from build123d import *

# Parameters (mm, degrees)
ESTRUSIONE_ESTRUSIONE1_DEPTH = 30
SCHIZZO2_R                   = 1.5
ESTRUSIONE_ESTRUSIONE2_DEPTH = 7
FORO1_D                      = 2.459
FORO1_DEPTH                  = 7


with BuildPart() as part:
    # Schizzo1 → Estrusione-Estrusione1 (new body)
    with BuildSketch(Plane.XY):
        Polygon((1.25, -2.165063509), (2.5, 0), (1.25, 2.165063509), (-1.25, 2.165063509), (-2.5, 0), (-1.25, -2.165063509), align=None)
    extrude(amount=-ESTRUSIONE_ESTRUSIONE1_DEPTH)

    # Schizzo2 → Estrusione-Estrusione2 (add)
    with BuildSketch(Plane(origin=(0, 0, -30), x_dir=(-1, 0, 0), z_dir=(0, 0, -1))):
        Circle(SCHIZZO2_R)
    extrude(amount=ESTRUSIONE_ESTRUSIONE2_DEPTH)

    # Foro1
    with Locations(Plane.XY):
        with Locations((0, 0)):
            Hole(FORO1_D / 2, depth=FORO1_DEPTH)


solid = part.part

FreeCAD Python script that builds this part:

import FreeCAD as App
import Part
import Sketcher
from FreeCAD import Vector
Q = App.Units.Quantity


def add_polygon(sketch, points):
    """Adds a closed chain of lines whose ends are joined by coincident constraints."""
    first, n = sketch.GeometryCount, len(points)
    for a, b in zip(points, points[1:] + points[:1]):
        sketch.addGeometry(Part.LineSegment(App.Vector(*a, 0), App.Vector(*b, 0)), False)
    for i in range(n):
        sketch.addConstraint(Sketcher.Constraint("Coincident", first + i, 2, first + (i + 1) % n, 1))

doc = App.newDocument("Part")
body = doc.addObject("PartDesign::Body", "Body")

# Sketch on XY plane
sketch1 = body.newObject("Sketcher::SketchObject", "Sketch")
sketch1.AttachmentSupport = (doc.getObject("XY_Plane"), [""])
sketch1.MapMode = "FlatFace"
add_polygon(sketch1, [(1.25, -2.165064), (2.5, 0), (1.25, 2.165064), (-1.25, 2.165064), (-2.5, 0), (-1.25, -2.165064)])  # lines 0-5
sketch1.addConstraint([
    Sketcher.Constraint("Horizontal", 2),
    Sketcher.Constraint("Horizontal", 5),
    Sketcher.Constraint("Symmetric", 0, 2, 3, 2, -1, 1),
    Sketcher.Constraint("Symmetric", 1, 2, 4, 2, -1, 1),
    Sketcher.Constraint("PointOnObject", 0, 2, -1),
    Sketcher.Constraint("Parallel", 0, 3),
    Sketcher.Constraint("Vertical", 2, 2, 4, 2),
    Sketcher.Constraint("Angle", 0, Q("60 deg")),
    Sketcher.Constraint("DistanceX", 2, 2, 2, 1, 2.5),
    Sketcher.Constraint("DistanceX", 3, 2, 0, 2, 5.0),
])
pad1 = body.newObject("PartDesign::Pad", "Pad")
pad1.Profile = sketch1
pad1.Length = 30
pad1.Reversed = True

# Sketch on XY plane
sketch2 = body.newObject("Sketcher::SketchObject", "Sketch001")
sketch2.AttachmentSupport = (doc.getObject("XY_Plane"), [""])
sketch2.MapMode = "FlatFace"
sketch2.AttachmentOffset = App.Placement(Vector(0, 0, -30), App.Rotation())
sketch2.addGeometry(Part.Circle(Vector(0, 0, 0), Vector(0, 0, 1), 1.5), False)
sketch2.addConstraint([
    Sketcher.Constraint("Coincident", 0, 3, -1, 1),
    Sketcher.Constraint("Diameter", 0, 3.0),
])
pad2 = body.newObject("PartDesign::Pad", "Pad001")
pad2.Profile = sketch2
pad2.Length = 7
pad2.Reversed = True

# Sketch on XY plane
sketch3 = body.newObject("Sketcher::SketchObject", "Sketch002")
sketch3.AttachmentSupport = (doc.getObject("XY_Plane"), [""])
sketch3.MapMode = "FlatFace"
sketch3.addGeometry(Part.Circle(Vector(0, 0, 0), Vector(0, 0, 1), 1.2295), False)
sketch3.addConstraint([
    Sketcher.Constraint("Coincident", 0, 3, -1, 1),
    Sketcher.Constraint("Diameter", 0, 2.459),
])
doc.recompute()
hole = body.newObject("PartDesign::Hole", "Hole")
hole.Profile = sketch3
hole.ThreadType = "None"
hole.Diameter = 2.459
hole.DepthType = "Dimension"
hole.Depth = 7
hole.DrillPoint = "Flat"

doc.recompute()
